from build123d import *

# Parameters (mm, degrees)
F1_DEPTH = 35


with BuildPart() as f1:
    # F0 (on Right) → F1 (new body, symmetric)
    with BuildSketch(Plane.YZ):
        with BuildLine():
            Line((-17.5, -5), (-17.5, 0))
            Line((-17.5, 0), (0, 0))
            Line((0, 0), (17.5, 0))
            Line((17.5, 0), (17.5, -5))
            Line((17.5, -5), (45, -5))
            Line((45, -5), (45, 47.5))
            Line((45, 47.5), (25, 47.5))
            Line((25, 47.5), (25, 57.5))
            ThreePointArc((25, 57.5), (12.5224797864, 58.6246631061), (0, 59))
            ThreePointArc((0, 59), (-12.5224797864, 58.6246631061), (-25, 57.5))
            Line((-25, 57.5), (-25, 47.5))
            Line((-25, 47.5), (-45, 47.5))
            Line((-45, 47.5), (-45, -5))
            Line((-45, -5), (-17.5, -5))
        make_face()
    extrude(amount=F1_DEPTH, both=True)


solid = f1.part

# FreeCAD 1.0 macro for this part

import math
import FreeCAD as App
import Part
import Sketcher

V = App.Vector

doc = App.newDocument("Part")
body = doc.addObject("PartDesign::Body", "Body")

# Sketch on YZ plane
sketch1 = body.newObject("Sketcher::SketchObject", "Sketch")
sketch1.AttachmentSupport = (doc.getObject("YZ_Plane"), [""])
sketch1.MapMode = "FlatFace"
sketch1.addGeometry(Part.LineSegment(V(-17.5, -5, 0), V(-17.5, 0, 0)), False)
sketch1.addGeometry(Part.LineSegment(V(-17.5, 0, 0), V(17.5, 0, 0)), False)
sketch1.addGeometry(Part.LineSegment(V(17.5, 0, 0), V(17.5, -5, 0)), False)
sketch1.addGeometry(Part.LineSegment(V(17.5, -5, 0), V(45, -5, 0)), False)
sketch1.addGeometry(Part.LineSegment(V(45, -5, 0), V(45, 47.5, 0)), False)
sketch1.addGeometry(Part.LineSegment(V(45, 47.5, 0), V(25, 47.5, 0)), False)
sketch1.addGeometry(Part.LineSegment(V(25, 47.5, 0), V(25, 57.5, 0)), False)
sketch1.addGeometry(Part.ArcOfCircle(Part.Circle(V(0, -150.083333, 0), V(0, 0, 1), 209.083333), math.radians(83.132739), math.radians(90)), False)
sketch1.addGeometry(Part.ArcOfCircle(Part.Circle(V(0, -150.083333, 0), V(0, 0, 1), 209.083333), math.radians(90), math.radians(96.867261)), False)
sketch1.addGeometry(Part.LineSegment(V(-25, 57.5, 0), V(-25, 47.5, 0)), False)
sketch1.addGeometry(Part.LineSegment(V(-25, 47.5, 0), V(-45, 47.5, 0)), False)
sketch1.addGeometry(Part.LineSegment(V(-45, 47.5, 0), V(-45, -5, 0)), False)
sketch1.addGeometry(Part.LineSegment(V(-45, -5, 0), V(-17.5, -5, 0)), False)
sketch1.addConstraint(Sketcher.Constraint("Coincident", 0, 2, 1, 1))
sketch1.addConstraint(Sketcher.Constraint("Coincident", 1, 2, 2, 1))
sketch1.addConstraint(Sketcher.Constraint("Coincident", 2, 2, 3, 1))
sketch1.addConstraint(Sketcher.Constraint("Coincident", 3, 2, 4, 1))
sketch1.addConstraint(Sketcher.Constraint("Coincident", 4, 2, 5, 1))
sketch1.addConstraint(Sketcher.Constraint("Coincident", 5, 2, 6, 1))
sketch1.addConstraint(Sketcher.Constraint("Coincident", 6, 2, 7, 1))
sketch1.addConstraint(Sketcher.Constraint("Tangent", 7, 2, 8, 1))
sketch1.addConstraint(Sketcher.Constraint("Coincident", 8, 2, 9, 1))
sketch1.addConstraint(Sketcher.Constraint("Coincident", 9, 2, 10, 1))
sketch1.addConstraint(Sketcher.Constraint("Coincident", 10, 2, 11, 1))
sketch1.addConstraint(Sketcher.Constraint("Coincident", 11, 2, 12, 1))
sketch1.addConstraint(Sketcher.Constraint("Coincident", 12, 2, 0, 1))
sketch1.addConstraint(Sketcher.Constraint("Vertical", 0))
sketch1.addConstraint(Sketcher.Constraint("Horizontal", 1))
sketch1.addConstraint(Sketcher.Constraint("Vertical", 2))
sketch1.addConstraint(Sketcher.Constraint("Horizontal", 3))
sketch1.addConstraint(Sketcher.Constraint("Vertical", 4))
sketch1.addConstraint(Sketcher.Constraint("Horizontal", 5))
sketch1.addConstraint(Sketcher.Constraint("Vertical", 6))
sketch1.addConstraint(Sketcher.Constraint("Vertical", 9))
sketch1.addConstraint(Sketcher.Constraint("Horizontal", 10))
sketch1.addConstraint(Sketcher.Constraint("Vertical", 11))
sketch1.addConstraint(Sketcher.Constraint("Horizontal", 12))
sketch1.addConstraint(Sketcher.Constraint("Equal", 7, 8))
sketch1.addConstraint(Sketcher.Constraint("Symmetric", 0, 2, 1, 2, -1, 1))
sketch1.addConstraint(Sketcher.Constraint("Symmetric", 6, 2, 8, 2, -2))
sketch1.addConstraint(Sketcher.Constraint("Symmetric", 4, 2, 10, 2, -2))
sketch1.addConstraint(Sketcher.Constraint("PointOnObject", 7, 2, -2))
sketch1.addConstraint(Sketcher.Constraint("Horizontal", 3, 2, 11, 2))
sketch1.addConstraint(Sketcher.Constraint("DistanceX", 1, 1, 1, 2, 35.0))
sketch1.addConstraint(Sketcher.Constraint("DistanceX", 5, 2, 5, 1, 20.0))
sketch1.addConstraint(Sketcher.Constraint("DistanceY", 0, 1, 0, 2, 5.0))
sketch1.addConstraint(Sketcher.Constraint("DistanceY", 6, 1, 6, 2, 10.0))
sketch1.addConstraint(Sketcher.Constraint("DistanceX", 3, 1, 3, 2, 27.5))
sketch1.addConstraint(Sketcher.Constraint("DistanceY", 4, 1, 4, 2, 52.5))
sketch1.addConstraint(Sketcher.Constraint("DistanceY", -1, 1, 7, 2, 59.0))
pad1 = body.newObject("PartDesign::Pad", "Pad")
pad1.Profile = sketch1
pad1.Length = 70
pad1.Midplane = True

doc.recompute()
